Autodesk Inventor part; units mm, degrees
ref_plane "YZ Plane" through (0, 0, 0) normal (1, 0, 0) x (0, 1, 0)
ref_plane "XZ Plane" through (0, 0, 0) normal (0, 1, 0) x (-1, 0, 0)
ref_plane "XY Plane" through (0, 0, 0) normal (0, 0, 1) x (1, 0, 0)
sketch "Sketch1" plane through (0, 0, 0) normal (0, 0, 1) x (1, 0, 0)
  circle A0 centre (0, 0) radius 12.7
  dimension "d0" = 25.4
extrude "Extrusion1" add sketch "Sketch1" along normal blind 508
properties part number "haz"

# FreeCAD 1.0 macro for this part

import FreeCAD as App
import Part
import Sketcher
Q = App.Units.Quantity

doc = App.newDocument("Part")
params = doc.addObject("Spreadsheet::Sheet", "Params")
for row, (alias, value) in enumerate([
    ("sketch1_diameter", "1 in"),
    ("pad1_length", "20 in"),
], start=1):
    params.set(f"A{row}", alias)
    params.set(f"B{row}", "=" + value)
    params.setAlias(f"B{row}", alias)

body = doc.addObject("PartDesign::Body", "Body")

# Sketch on XY plane
sketch1 = doc.addObject("Sketcher::SketchObject", "Sketch")
body.addObject(sketch1)
sketch1.AttachmentSupport = (doc.XY_Plane, [""])
sketch1.MapMode = "FlatFace"
sketch1.addGeometry(Part.Circle(App.Vector(0, 0, 0), App.Vector(0, 0, 1), 12.7), False)
sketch1.addConstraint(Sketcher.Constraint("Coincident", 0, 3, -1, 1))
sketch1.addConstraint(Sketcher.Constraint("Diameter", 0, Q("1 in")))
sketch1.setExpression("Constraints[1]", "Params.sketch1_diameter")
pad1 = doc.addObject("PartDesign::Pad", "Pad")
body.addObject(pad1)
pad1.Profile = sketch1
pad1.setExpression("Length", "Params.pad1_length")

doc.recompute()
